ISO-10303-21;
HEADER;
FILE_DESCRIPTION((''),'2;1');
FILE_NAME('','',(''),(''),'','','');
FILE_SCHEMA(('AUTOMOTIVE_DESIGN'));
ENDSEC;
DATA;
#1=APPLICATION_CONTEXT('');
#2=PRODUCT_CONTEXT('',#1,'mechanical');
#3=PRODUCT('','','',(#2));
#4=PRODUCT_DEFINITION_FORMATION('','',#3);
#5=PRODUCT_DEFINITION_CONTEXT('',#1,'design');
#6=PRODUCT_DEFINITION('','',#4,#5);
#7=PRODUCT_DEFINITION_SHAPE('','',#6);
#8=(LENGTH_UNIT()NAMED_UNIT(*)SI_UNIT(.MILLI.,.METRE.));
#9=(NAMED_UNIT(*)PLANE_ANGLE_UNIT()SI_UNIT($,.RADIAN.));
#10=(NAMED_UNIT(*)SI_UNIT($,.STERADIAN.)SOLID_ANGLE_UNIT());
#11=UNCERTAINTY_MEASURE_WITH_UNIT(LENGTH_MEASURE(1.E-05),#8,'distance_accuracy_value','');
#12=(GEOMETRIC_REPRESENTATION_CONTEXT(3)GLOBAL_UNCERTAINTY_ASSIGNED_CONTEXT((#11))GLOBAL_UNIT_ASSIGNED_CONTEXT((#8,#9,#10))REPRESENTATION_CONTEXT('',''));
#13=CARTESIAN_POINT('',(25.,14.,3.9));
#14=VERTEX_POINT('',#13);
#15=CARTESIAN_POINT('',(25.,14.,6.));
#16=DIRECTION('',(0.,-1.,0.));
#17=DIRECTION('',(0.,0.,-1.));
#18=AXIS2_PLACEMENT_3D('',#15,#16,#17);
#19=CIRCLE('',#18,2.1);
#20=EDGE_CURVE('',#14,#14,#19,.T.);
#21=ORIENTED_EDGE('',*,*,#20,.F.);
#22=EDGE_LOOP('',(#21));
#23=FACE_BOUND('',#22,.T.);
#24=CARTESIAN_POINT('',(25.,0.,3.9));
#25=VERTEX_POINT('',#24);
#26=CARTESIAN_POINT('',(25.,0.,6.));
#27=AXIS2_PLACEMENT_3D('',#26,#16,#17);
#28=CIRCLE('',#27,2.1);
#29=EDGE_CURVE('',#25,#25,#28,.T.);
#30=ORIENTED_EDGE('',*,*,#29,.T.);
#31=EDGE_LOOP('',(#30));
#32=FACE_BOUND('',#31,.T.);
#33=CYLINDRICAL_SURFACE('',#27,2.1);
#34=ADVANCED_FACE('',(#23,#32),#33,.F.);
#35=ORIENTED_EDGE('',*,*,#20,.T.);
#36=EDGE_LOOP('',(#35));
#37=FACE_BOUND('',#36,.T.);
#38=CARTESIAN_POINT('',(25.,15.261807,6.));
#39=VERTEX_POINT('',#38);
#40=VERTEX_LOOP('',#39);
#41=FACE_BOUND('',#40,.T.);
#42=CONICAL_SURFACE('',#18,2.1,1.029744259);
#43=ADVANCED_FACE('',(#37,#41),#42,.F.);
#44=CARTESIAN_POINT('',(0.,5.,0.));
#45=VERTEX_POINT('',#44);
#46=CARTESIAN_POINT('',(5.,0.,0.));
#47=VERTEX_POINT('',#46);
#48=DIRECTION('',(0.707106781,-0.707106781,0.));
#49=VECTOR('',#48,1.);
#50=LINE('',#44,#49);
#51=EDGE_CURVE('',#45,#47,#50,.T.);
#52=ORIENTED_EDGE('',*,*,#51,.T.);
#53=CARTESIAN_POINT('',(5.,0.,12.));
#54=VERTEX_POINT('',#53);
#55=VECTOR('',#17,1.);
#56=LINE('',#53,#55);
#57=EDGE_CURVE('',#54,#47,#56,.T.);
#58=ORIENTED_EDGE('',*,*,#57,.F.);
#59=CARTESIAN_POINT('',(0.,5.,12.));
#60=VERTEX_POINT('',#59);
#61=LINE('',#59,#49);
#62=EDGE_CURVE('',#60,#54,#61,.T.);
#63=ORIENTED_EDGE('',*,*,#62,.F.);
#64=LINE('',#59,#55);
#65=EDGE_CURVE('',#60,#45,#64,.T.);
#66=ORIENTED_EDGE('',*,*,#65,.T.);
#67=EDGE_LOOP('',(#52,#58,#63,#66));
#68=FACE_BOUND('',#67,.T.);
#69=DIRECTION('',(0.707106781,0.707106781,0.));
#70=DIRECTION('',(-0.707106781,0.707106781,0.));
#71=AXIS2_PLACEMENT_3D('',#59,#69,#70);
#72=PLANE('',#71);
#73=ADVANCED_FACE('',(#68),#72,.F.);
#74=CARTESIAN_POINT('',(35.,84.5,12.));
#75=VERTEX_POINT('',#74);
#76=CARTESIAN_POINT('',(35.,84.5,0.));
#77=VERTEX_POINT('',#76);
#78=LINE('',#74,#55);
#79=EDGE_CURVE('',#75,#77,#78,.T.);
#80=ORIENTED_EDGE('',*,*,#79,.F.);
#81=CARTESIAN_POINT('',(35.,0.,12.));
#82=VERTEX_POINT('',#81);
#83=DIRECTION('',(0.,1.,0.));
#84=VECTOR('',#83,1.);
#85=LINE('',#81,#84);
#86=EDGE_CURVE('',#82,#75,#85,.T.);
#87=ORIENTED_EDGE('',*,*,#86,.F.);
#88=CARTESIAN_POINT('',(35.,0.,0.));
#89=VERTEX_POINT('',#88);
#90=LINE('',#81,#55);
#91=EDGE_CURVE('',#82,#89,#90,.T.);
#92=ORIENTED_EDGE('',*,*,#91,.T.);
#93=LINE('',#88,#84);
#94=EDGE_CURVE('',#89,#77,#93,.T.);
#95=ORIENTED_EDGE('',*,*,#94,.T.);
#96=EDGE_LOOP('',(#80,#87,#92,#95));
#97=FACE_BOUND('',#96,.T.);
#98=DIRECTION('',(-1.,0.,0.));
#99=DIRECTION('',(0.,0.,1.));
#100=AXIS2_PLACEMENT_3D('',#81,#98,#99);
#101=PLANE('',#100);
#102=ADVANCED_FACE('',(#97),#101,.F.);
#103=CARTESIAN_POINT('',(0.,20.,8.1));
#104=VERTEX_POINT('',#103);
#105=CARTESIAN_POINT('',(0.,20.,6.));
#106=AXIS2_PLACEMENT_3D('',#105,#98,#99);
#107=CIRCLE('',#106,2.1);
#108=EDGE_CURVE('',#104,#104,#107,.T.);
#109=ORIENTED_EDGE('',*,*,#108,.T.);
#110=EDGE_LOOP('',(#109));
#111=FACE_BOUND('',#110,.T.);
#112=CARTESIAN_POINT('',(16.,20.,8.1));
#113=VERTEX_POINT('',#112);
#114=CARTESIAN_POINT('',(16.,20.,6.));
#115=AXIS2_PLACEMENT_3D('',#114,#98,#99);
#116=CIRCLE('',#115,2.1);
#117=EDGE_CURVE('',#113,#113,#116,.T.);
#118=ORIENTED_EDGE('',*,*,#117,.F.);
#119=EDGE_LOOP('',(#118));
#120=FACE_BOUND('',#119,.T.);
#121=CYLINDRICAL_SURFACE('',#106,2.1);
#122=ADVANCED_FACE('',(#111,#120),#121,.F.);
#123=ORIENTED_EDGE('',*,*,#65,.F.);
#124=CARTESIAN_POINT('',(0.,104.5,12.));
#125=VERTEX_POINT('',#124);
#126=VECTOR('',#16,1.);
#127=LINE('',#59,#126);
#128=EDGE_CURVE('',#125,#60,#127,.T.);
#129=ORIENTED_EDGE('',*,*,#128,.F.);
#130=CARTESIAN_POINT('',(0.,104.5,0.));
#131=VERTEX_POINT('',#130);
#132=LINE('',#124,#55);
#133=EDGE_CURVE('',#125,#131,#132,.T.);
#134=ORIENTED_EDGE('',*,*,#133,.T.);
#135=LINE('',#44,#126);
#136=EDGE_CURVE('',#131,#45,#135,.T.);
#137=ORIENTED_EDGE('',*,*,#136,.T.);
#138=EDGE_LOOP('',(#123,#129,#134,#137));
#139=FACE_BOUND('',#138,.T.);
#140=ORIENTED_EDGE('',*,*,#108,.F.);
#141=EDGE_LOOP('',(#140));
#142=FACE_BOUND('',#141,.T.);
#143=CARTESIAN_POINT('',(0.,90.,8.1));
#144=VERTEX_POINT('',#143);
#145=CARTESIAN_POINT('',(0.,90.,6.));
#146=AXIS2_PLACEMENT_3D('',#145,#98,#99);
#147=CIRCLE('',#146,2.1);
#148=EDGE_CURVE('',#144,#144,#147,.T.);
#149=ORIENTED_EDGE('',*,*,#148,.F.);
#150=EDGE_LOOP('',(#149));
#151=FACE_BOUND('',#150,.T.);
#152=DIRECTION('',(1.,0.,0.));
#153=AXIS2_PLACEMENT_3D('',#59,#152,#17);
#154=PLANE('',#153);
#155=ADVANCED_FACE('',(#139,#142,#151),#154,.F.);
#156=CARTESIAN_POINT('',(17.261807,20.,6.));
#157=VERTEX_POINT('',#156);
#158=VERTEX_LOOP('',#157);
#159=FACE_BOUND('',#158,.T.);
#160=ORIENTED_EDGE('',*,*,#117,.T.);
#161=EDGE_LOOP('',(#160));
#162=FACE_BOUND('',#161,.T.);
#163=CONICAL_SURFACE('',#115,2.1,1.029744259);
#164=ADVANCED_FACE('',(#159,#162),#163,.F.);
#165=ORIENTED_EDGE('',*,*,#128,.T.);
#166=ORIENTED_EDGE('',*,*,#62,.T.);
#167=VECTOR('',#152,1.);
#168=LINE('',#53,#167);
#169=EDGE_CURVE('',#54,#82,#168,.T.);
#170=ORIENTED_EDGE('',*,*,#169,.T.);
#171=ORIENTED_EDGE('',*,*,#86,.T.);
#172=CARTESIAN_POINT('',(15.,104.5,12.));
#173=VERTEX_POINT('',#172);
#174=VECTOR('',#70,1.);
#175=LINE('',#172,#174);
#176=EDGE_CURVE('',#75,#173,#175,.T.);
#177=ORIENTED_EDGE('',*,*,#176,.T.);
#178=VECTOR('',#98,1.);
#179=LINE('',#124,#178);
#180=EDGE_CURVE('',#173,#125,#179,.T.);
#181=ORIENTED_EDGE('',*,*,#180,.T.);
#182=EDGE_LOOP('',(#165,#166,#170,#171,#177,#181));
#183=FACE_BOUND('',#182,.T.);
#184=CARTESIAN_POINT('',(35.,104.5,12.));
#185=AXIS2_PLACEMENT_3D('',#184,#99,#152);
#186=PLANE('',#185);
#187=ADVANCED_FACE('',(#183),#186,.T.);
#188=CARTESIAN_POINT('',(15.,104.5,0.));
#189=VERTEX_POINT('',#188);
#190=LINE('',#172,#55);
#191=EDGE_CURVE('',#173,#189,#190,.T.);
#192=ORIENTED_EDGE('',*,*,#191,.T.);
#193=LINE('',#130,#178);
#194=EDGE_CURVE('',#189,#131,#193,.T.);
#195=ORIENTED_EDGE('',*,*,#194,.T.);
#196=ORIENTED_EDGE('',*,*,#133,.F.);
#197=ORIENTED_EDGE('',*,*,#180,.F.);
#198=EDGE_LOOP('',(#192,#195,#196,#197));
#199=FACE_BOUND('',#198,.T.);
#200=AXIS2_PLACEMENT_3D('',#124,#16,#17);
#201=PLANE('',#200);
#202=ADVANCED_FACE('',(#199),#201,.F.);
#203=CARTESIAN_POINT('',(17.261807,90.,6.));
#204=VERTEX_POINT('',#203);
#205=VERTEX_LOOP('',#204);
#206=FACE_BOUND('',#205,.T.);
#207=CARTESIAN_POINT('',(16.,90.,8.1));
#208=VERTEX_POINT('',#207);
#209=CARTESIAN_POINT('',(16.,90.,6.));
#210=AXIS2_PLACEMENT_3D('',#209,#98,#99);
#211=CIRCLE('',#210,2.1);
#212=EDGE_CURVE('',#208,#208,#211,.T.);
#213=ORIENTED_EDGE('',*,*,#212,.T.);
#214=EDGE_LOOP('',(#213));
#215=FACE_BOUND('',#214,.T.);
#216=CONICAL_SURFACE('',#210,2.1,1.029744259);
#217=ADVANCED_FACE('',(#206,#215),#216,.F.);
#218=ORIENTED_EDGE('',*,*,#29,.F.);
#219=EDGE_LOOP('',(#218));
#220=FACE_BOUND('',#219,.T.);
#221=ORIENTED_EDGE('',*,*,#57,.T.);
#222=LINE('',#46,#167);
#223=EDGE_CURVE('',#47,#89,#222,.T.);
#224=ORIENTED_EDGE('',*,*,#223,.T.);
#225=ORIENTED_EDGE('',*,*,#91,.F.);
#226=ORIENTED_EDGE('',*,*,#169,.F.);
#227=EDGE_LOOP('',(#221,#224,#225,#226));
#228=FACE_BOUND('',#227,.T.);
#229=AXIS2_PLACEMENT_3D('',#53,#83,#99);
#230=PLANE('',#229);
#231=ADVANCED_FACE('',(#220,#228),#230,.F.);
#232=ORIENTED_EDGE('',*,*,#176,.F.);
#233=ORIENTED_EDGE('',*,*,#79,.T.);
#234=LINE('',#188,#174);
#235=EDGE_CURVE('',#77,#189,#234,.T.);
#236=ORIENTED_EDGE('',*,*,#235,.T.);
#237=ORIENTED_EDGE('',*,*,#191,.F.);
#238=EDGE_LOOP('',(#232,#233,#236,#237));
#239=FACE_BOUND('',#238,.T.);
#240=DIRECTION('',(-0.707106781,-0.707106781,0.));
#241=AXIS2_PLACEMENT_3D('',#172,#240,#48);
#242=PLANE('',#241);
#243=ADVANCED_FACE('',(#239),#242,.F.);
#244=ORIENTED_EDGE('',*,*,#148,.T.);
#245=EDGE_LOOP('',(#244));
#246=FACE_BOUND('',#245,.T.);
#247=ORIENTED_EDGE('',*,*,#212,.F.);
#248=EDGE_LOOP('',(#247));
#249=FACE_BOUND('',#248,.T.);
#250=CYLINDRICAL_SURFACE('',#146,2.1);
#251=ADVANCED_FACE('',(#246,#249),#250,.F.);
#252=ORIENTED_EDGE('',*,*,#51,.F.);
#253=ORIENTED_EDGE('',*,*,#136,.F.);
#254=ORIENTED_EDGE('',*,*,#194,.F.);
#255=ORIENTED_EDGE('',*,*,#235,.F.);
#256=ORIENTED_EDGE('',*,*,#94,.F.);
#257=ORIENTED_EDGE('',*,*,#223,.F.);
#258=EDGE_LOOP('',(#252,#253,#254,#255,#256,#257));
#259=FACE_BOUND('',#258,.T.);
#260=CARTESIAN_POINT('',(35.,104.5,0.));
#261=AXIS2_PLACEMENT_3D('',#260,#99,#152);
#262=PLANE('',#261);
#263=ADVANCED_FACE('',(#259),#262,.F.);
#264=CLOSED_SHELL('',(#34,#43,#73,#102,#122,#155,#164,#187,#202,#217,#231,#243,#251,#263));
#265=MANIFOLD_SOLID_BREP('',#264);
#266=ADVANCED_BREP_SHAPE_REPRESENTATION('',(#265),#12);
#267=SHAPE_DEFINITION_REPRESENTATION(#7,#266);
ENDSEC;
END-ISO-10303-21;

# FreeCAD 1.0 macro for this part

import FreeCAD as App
import Part
import Sketcher
from FreeCAD import Vector
Q = App.Units.Quantity

doc = App.newDocument("Part")
params = doc.addObject("Spreadsheet::Sheet", "Params")
for row, (alias, value) in enumerate([
    ("sketch1_width", "15 mm"),
    ("sketch1_width2", "30 mm"),
    ("sketch1_height", "99.5 mm"),
    ("pad1_length", "12 mm"),
    ("sketch2_diameter", "4.2 mm"),
    ("hole_diameter", "4.2 mm"),
    ("hole_depth", "16 mm"),
    ("sketch3_diameter", "4.2 mm"),
    ("hole2_diameter", "4.2 mm"),
    ("hole2_depth", "14 mm"),
], start=1):
    params.set(f"A{row}", alias)
    params.set(f"B{row}", "=" + value)
    params.setAlias(f"B{row}", alias)

body = doc.addObject("PartDesign::Body", "Body")

# Sketch on XY plane
sketch1 = body.newObject("Sketcher::SketchObject", "Sketch")
sketch1.AttachmentSupport = (doc.getObject("XY_Plane"), [""])
sketch1.MapMode = "FlatFace"
sketch1.addGeometry(Part.LineSegment(Vector(35, 84, 0), Vector(15, 104, 0)), False)
sketch1.addGeometry(Part.LineSegment(Vector(15, 104, 0), Vector(0, 104, 0)), False)
sketch1.addGeometry(Part.LineSegment(Vector(0, 104, 0), Vector(0, 5, 0)), False)
sketch1.addGeometry(Part.LineSegment(Vector(0, 5, 0), Vector(5, 0, 0)), False)
sketch1.addGeometry(Part.LineSegment(Vector(5, 0, 0), Vector(35, 0, 0)), False)
sketch1.addGeometry(Part.LineSegment(Vector(35, 0, 0), Vector(35, 84, 0)), False)
sketch1.addConstraint(Sketcher.Constraint("Coincident", 0, 2, 1, 1))
sketch1.addConstraint(Sketcher.Constraint("Coincident", 1, 2, 2, 1))
sketch1.addConstraint(Sketcher.Constraint("Coincident", 2, 2, 3, 1))
sketch1.addConstraint(Sketcher.Constraint("Coincident", 3, 2, 4, 1))
sketch1.addConstraint(Sketcher.Constraint("Coincident", 4, 2, 5, 1))
sketch1.addConstraint(Sketcher.Constraint("Coincident", 5, 2, 0, 1))
sketch1.addConstraint(Sketcher.Constraint("Horizontal", 1))
sketch1.addConstraint(Sketcher.Constraint("Vertical", 2))
sketch1.addConstraint(Sketcher.Constraint("Horizontal", 4))
sketch1.addConstraint(Sketcher.Constraint("Vertical", 5))
sketch1.addConstraint(Sketcher.Constraint("PointOnObject", 1, 2, -2))
sketch1.addConstraint(Sketcher.Constraint("PointOnObject", 3, 2, -1))
sketch1.addConstraint(Sketcher.Constraint("Parallel", 0, 3))
sketch1.addConstraint(Sketcher.Constraint("DistanceX", 1, 2, 1, 1, Q("15 mm")))
sketch1.addConstraint(Sketcher.Constraint("DistanceX", 4, 1, 4, 2, Q("30 mm")))
sketch1.addConstraint(Sketcher.Constraint("Angle", 0, Q("135 deg")))
sketch1.addConstraint(Sketcher.Constraint("DistanceY", 2, 2, 2, 1, Q("99.5 mm")))
sketch1.addConstraint(Sketcher.Constraint("DistanceY", -1, 1, 2, 2, Q("5 mm")))
sketch1.setExpression("Constraints[13]", "Params.sketch1_width")
sketch1.setExpression("Constraints[14]", "Params.sketch1_width2")
sketch1.setExpression("Constraints[16]", "Params.sketch1_height")
pad1 = body.newObject("PartDesign::Pad", "Pad")
pad1.Profile = sketch1
pad1.setExpression("Length", "Params.pad1_length")

# Sketch on YZ plane
sketch2 = body.newObject("Sketcher::SketchObject", "Sketch001")
sketch2.AttachmentSupport = (doc.getObject("YZ_Plane"), [""])
sketch2.MapMode = "FlatFace"
sketch2.addGeometry(Part.Circle(Vector(90, 6, 0), Vector(0, 0, 1), 2.1), False)
sketch2.addGeometry(Part.Circle(Vector(20, 6, 0), Vector(0, 0, 1), 2.1), False)
sketch2.addConstraint(Sketcher.Constraint("Equal", 0, 1))
sketch2.addConstraint(Sketcher.Constraint("Horizontal", 0, 3, 1, 3))
sketch2.addConstraint(Sketcher.Constraint("Diameter", 0, Q("4.2 mm")))
sketch2.addConstraint(Sketcher.Constraint("DistanceX", -1, 1, 0, 3, Q("90 mm")))
sketch2.addConstraint(Sketcher.Constraint("DistanceY", -1, 1, 0, 3, Q("6 mm")))
sketch2.addConstraint(Sketcher.Constraint("DistanceX", -1, 1, 1, 3, Q("20 mm")))
sketch2.setExpression("Constraints[2]", "Params.sketch2_diameter")
doc.recompute()
hole = body.newObject("PartDesign::Hole", "Hole")
hole.Profile = sketch2
hole.ThreadType = "None"
hole.setExpression("Diameter", "Params.hole_diameter")
hole.DepthType = "Dimension"
hole.setExpression("Depth", "Params.hole_depth")
hole.DrillPoint = "Angled"
hole.DrillPointAngle = 118
hole.Reversed = True

# Sketch on XZ plane
sketch3 = body.newObject("Sketcher::SketchObject", "Sketch002")
sketch3.AttachmentSupport = (doc.getObject("XZ_Plane"), [""])
sketch3.MapMode = "FlatFace"
sketch3.addGeometry(Part.Circle(Vector(25, 6, 0), Vector(0, 0, 1), 2.1), False)
sketch3.addConstraint(Sketcher.Constraint("Diameter", 0, Q("4.2 mm")))
sketch3.addConstraint(Sketcher.Constraint("DistanceX", -1, 1, 0, 3, Q("25 mm")))
sketch3.addConstraint(Sketcher.Constraint("DistanceY", -1, 1, 0, 3, Q("6 mm")))
sketch3.setExpression("Constraints[0]", "Params.sketch3_diameter")
doc.recompute()
hole2 = body.newObject("PartDesign::Hole", "Hole001")
hole2.Profile = sketch3
hole2.ThreadType = "None"
hole2.setExpression("Diameter", "Params.hole2_diameter")
hole2.DepthType = "Dimension"
hole2.setExpression("Depth", "Params.hole2_depth")
hole2.DrillPoint = "Angled"
hole2.DrillPointAngle = 118

doc.recompute()
